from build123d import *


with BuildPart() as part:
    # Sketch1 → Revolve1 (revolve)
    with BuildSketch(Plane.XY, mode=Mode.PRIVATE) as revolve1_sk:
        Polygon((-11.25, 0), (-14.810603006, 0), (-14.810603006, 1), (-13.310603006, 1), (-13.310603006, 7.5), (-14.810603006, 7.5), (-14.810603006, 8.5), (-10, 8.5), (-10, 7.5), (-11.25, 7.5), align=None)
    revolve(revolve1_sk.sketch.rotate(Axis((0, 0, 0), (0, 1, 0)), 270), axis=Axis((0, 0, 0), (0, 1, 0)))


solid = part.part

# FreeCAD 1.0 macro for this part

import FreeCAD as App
import Part
import Sketcher

V = App.Vector


def add_polygon(sketch, points):
    """Adds a closed chain of lines whose ends are joined by coincident constraints."""
    first, n = sketch.GeometryCount, len(points)
    for a, b in zip(points, points[1:] + points[:1]):
        sketch.addGeometry(Part.LineSegment(App.Vector(*a, 0), App.Vector(*b, 0)), False)
    for i in range(n):
        sketch.addConstraint(Sketcher.Constraint("Coincident", first + i, 2, first + (i + 1) % n, 1))

doc = App.newDocument("Part")
params = doc.addObject("Spreadsheet::Sheet", "Params")
for row, (alias, value) in enumerate([
    ("sketch1_height", "1 mm"),
    ("sketch1_width", "1.5 mm"),
    ("sketch1_height2", "7.5 mm"),
    ("sketch1_width2", "1.25 mm"),
    ("revolution_angle", "360 deg"),
], start=1):
    params.set(f"A{row}", alias)
    params.set(f"B{row}", "=" + value)
    params.setAlias(f"B{row}", alias)

body = doc.addObject("PartDesign::Body", "Body")

# Sketch on XY plane
sketch1 = body.newObject("Sketcher::SketchObject", "Sketch")
sketch1.AttachmentSupport = (doc.getObject("XY_Plane"), [""])
sketch1.MapMode = "FlatFace"
add_polygon(sketch1, [(-14.8, 0), (-11.2, 0), (-11.2, 7.5), (-10, 7.5), (-10, 8.5), (-14.8, 8.5), (-14.8, 7.5), (-13.3, 7.5), (-13.3, 1), (-14.8, 1)])  # lines 0-9
sketch1.addConstraint([
    Sketcher.Constraint("Horizontal", 0),
    Sketcher.Constraint("Vertical", 1),
    Sketcher.Constraint("Horizontal", 2),
    Sketcher.Constraint("Vertical", 3),
    Sketcher.Constraint("Horizontal", 4),
    Sketcher.Constraint("Vertical", 5),
    Sketcher.Constraint("Horizontal", 6),
    Sketcher.Constraint("Vertical", 7),
    Sketcher.Constraint("Horizontal", 8),
    Sketcher.Constraint("Vertical", 9),
    Sketcher.Constraint("PointOnObject", 0, 2, -1),
    Sketcher.Constraint("Horizontal", 2, 2, 5, 2),
    Sketcher.Constraint("Vertical", 5, 2, 8, 2),
    Sketcher.Constraint("Equal", 5, 9),
    Sketcher.Constraint("DistanceY", 3, 1, 3, 2, 1.0),
    Sketcher.Constraint("DistanceX", 6, 1, 6, 2, 1.5),
    Sketcher.Constraint("DistanceY", 1, 1, 1, 2, 7.5),
    Sketcher.Constraint("DistanceX", 2, 2, -1, 1, 10.0),
    Sketcher.Constraint("DistanceX", 2, 1, 2, 2, 1.25),
    Sketcher.Constraint("DistanceX", 0, 1, 0, 2, 3.560603),
])
sketch1.setExpression("Constraints[24]", "Params.sketch1_height")
sketch1.setExpression("Constraints[25]", "Params.sketch1_width")
sketch1.setExpression("Constraints[26]", "Params.sketch1_height2")
sketch1.setExpression("Constraints[28]", "Params.sketch1_width2")
revolution = body.newObject("PartDesign::Revolution", "Revolution")
revolution.Profile = sketch1
revolution.ReferenceAxis = (sketch1, ["V_Axis"])
revolution.setExpression("Angle", "Params.revolution_angle")

doc.recompute()
